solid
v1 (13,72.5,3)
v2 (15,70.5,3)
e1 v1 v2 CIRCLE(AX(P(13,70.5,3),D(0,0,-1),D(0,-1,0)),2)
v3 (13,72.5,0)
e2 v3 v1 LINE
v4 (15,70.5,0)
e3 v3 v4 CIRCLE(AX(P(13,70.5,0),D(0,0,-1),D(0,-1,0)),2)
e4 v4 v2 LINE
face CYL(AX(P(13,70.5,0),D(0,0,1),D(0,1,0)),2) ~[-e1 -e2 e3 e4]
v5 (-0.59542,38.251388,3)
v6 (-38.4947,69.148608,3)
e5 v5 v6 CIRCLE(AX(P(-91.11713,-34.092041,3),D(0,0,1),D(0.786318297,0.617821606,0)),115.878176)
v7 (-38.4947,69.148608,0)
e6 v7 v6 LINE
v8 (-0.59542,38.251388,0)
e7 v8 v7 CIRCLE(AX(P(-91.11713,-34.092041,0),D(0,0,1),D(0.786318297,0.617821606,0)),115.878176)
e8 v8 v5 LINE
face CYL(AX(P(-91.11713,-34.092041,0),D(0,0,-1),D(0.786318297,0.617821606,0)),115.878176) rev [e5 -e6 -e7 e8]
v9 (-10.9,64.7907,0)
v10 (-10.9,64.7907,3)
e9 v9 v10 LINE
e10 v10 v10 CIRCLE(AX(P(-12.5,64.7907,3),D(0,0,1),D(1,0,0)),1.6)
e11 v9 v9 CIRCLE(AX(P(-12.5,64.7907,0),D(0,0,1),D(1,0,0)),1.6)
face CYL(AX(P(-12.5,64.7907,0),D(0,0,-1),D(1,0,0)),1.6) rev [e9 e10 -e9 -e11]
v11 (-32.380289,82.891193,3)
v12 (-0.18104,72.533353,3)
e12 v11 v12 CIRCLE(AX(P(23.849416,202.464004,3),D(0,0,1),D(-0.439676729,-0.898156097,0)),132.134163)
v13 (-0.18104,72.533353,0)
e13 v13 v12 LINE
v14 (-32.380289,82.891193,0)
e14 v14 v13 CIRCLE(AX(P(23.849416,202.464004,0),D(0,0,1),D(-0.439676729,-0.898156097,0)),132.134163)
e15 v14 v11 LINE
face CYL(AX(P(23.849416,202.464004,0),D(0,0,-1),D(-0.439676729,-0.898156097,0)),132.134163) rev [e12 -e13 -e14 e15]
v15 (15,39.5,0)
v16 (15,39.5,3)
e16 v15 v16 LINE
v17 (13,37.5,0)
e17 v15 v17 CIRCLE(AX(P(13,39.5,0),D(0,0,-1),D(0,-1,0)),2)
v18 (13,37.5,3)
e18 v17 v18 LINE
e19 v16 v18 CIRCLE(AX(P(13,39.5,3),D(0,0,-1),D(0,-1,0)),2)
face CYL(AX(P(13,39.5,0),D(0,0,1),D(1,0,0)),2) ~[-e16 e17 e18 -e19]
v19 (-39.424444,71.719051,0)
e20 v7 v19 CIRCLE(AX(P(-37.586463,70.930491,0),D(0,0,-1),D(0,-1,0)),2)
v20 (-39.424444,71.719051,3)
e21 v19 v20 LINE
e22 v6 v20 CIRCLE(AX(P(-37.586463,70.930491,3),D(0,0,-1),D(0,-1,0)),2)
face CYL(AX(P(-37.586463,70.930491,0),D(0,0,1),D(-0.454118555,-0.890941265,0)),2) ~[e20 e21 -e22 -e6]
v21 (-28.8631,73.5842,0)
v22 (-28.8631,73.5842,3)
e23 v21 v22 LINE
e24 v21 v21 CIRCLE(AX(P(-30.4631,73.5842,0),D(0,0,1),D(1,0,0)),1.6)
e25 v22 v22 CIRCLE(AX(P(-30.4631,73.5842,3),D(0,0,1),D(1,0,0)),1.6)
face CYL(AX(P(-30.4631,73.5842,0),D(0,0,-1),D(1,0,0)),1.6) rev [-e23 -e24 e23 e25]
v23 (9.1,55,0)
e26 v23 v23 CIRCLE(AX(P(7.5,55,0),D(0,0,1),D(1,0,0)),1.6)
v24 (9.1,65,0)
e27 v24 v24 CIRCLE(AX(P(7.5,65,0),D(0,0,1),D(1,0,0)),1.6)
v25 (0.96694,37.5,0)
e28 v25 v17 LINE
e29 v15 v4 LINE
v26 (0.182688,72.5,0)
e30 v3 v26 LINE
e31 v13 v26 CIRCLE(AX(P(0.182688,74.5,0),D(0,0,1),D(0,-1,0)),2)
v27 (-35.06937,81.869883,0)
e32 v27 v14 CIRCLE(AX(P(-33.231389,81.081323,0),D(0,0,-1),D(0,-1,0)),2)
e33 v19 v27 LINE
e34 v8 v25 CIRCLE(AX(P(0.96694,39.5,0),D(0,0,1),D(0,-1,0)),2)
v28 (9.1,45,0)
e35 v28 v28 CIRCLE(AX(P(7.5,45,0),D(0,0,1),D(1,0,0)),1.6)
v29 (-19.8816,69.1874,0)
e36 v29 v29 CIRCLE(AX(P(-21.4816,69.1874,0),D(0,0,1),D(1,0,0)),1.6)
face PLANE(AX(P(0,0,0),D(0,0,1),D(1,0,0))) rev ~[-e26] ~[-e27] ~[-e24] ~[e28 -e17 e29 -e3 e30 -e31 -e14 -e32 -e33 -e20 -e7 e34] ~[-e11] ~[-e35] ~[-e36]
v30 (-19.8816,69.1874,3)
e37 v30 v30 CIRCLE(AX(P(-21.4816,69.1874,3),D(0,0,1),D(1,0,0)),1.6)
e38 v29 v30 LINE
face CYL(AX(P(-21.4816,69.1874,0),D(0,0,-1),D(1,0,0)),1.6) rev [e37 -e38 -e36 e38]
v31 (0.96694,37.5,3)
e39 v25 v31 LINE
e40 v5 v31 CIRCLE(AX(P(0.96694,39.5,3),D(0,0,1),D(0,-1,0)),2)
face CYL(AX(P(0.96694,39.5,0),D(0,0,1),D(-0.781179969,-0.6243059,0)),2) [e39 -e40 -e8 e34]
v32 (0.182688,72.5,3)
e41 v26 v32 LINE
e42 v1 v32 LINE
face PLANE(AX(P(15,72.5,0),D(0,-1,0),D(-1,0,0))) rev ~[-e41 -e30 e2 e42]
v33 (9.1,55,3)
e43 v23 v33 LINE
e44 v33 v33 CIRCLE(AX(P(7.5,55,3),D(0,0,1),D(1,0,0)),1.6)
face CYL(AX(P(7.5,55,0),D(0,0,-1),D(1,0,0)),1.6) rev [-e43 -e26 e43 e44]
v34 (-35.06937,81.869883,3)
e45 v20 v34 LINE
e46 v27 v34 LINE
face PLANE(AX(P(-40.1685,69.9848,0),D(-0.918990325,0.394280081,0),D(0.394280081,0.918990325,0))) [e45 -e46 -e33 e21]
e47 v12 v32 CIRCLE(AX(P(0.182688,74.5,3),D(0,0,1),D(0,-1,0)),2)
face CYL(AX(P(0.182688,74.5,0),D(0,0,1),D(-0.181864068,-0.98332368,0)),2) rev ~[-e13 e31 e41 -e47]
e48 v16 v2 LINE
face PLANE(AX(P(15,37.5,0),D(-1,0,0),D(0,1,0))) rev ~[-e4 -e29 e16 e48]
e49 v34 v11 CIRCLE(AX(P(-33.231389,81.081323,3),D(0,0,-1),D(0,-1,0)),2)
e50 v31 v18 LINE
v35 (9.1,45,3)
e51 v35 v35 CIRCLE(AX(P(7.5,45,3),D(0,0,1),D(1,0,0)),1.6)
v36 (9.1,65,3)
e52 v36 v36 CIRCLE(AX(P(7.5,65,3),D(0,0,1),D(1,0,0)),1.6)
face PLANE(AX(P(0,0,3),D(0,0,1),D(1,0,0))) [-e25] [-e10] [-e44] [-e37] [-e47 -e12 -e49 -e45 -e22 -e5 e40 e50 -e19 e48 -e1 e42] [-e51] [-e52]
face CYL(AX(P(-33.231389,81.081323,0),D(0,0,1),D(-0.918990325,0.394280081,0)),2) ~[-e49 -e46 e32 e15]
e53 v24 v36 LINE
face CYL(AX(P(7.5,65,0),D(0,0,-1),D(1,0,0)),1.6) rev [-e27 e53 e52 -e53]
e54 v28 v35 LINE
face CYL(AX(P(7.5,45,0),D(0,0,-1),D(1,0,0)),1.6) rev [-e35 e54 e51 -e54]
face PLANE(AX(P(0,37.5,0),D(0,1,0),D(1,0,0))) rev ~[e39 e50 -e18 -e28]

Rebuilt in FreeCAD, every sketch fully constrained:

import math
import FreeCAD as App
import Part
import Sketcher
from FreeCAD import Vector
Q = App.Units.Quantity


def edges_at(feature, points):
    """Names of the edges that pass closest to the given points."""
    edges = feature.Shape.Edges
    near = lambda p: min(range(len(edges)), key=lambda i: edges[i].distToShape(Part.Vertex(*p))[0])
    return sorted({f"Edge{near(p) + 1}" for p in points})

doc = App.newDocument("Part")
body = doc.addObject("PartDesign::Body", "Body")

# Sketch on XY plane
sketch1 = doc.addObject("Sketcher::SketchObject", "Sketch")
body.addObject(sketch1)
sketch1.AttachmentSupport = (doc.XY_Plane, [""])
sketch1.MapMode = "FlatFace"
sketch1.addGeometry(Part.ArcOfCircle(Part.Circle(Vector(-91.1, -34.1, 0), Vector(0, 0, 1), 115.9), math.radians(38), math.radians(64)), False)
sketch1.addGeometry(Part.LineSegment(Vector(0, 37.5, 0), Vector(15, 37.5, 0)), False)
sketch1.addGeometry(Part.LineSegment(Vector(15, 37.5, 0), Vector(15, 72.5, 0)), False)
sketch1.addGeometry(Part.LineSegment(Vector(15, 72.5, 0), Vector(0, 72.5, 0)), False)
sketch1.addGeometry(Part.ArcOfCircle(Part.Circle(Vector(23.8, 202.5, 0), Vector(0, 0, 1), 132.1), math.radians(-116.08), math.radians(-100.4)), False)
sketch1.addGeometry(Part.LineSegment(Vector(-34.2, 83.8, 0), Vector(-40.2, 70, 0)), False)
sketch1.addGeometry(Part.Circle(Vector(7.5, 45, 0), Vector(0, 0, 1), 1.6), False)
sketch1.addGeometry(Part.Circle(Vector(7.5, 55, 0), Vector(0, 0, 1), 1.6), False)
sketch1.addGeometry(Part.Circle(Vector(-30.5, 73.6, 0), Vector(0, 0, 1), 1.6), False)
sketch1.addGeometry(Part.Circle(Vector(-21.5, 69.2, 0), Vector(0, 0, 1), 1.6), False)
sketch1.addGeometry(Part.Circle(Vector(-12.5, 64.8, 0), Vector(0, 0, 1), 1.6), False)
sketch1.addGeometry(Part.Circle(Vector(7.5, 65, 0), Vector(0, 0, 1), 1.6), False)
sketch1.addConstraint(Sketcher.Constraint("Coincident", 0, 1, 1, 1))
sketch1.addConstraint(Sketcher.Constraint("Coincident", 1, 2, 2, 1))
sketch1.addConstraint(Sketcher.Constraint("Coincident", 2, 2, 3, 1))
sketch1.addConstraint(Sketcher.Constraint("Coincident", 3, 2, 4, 2))
sketch1.addConstraint(Sketcher.Constraint("Coincident", 4, 1, 5, 1))
sketch1.addConstraint(Sketcher.Constraint("Coincident", 5, 2, 0, 2))
sketch1.addConstraint(Sketcher.Constraint("Horizontal", 1))
sketch1.addConstraint(Sketcher.Constraint("Vertical", 2))
sketch1.addConstraint(Sketcher.Constraint("Horizontal", 3))
sketch1.addConstraint(Sketcher.Constraint("Equal", 6, 7))
sketch1.addConstraint(Sketcher.Constraint("Equal", 7, 8))
sketch1.addConstraint(Sketcher.Constraint("Equal", 8, 9))
sketch1.addConstraint(Sketcher.Constraint("Equal", 9, 10))
sketch1.addConstraint(Sketcher.Constraint("Equal", 10, 11))
sketch1.addConstraint(Sketcher.Constraint("PointOnObject", 0, 1, -2))
sketch1.addConstraint(Sketcher.Constraint("PointOnObject", 3, 2, -2))
sketch1.addConstraint(Sketcher.Constraint("Vertical", 6, 3, 7, 3))
sketch1.addConstraint(Sketcher.Constraint("Vertical", 7, 3, 11, 3))
sketch1.addConstraint(Sketcher.Constraint("Diameter", 6, Q("3.2 mm")))
sketch1.addConstraint(Sketcher.Constraint("DistanceX", 1, 1, 1, 2, Q("15 mm")))
sketch1.addConstraint(Sketcher.Constraint("DistanceY", 6, 3, 7, 3, Q("10 mm")))
sketch1.addConstraint(Sketcher.Constraint("DistanceX", 10, 3, 7, 3, Q("20 mm")))
sketch1.addConstraint(Sketcher.Constraint("DistanceY", 7, 3, 11, 3, Q("10 mm")))
sketch1.addConstraint(Sketcher.Constraint("DistanceX", -1, 1, 6, 3, Q("7.5 mm")))
sketch1.addConstraint(Sketcher.Constraint("DistanceY", 0, 1, 6, 3, Q("7.5 mm")))
sketch1.addConstraint(Sketcher.Constraint("DistanceY", 11, 3, 2, 2, Q("7.5 mm")))
sketch1.addConstraint(Sketcher.Constraint("DistanceY", -1, 1, 6, 3, Q("45 mm")))
sketch1.addConstraint(Sketcher.Constraint("Radius", 4, Q("132.135 mm")))
sketch1.addConstraint(Sketcher.Constraint("Angle", 5, Q("-113.221 deg")))
sketch1.addConstraint(Sketcher.Constraint("Radius", 0, Q("115.8782 mm")))
sketch1.addConstraint(Sketcher.Constraint("DistanceY", 0, 3, -1, 1, Q("34.092 mm")))
sketch1.addConstraint(Sketcher.Constraint("DistanceX", 8, 3, -1, 1, Q("30.463 mm")))
sketch1.addConstraint(Sketcher.Constraint("DistanceX", 4, 1, -1, 1, Q("34.247 mm")))
sketch1.addConstraint(Sketcher.Constraint("DistanceY", -1, 1, 4, 1, Q("83.787 mm")))
sketch1.addConstraint(Sketcher.Constraint("DistanceX", 5, 2, 9, 3, Q("18.687 mm")))
sketch1.addConstraint(Sketcher.Constraint("DistanceY", 10, 3, 5, 2, Q("5.194 mm")))
sketch1.addConstraint(Sketcher.Constraint("DistanceY", -1, 1, 8, 3, Q("73.5842 mm")))
sketch1.addConstraint(Sketcher.Constraint("DistanceY", -1, 1, 9, 3, Q("69.1874 mm")))
pad1 = doc.addObject("PartDesign::Pad", "Pad")
body.addObject(pad1)
pad1.Profile = sketch1
pad1.Length = 3
doc.recompute()

fillet = doc.addObject("PartDesign::Fillet", "Fillet")
body.addObject(fillet)
fillet.Base = (pad1, edges_at(pad1, [
    (0, 37.5, 1.5),
    (15, 37.5, 1.5),
    (15, 72.5, 1.5),
    (0, 72.5, 1.5),
    (-40.169, 69.985, 1.5),
    (-34.247, 83.787, 1.5),
]))
fillet.Radius = 2

doc.recompute()
